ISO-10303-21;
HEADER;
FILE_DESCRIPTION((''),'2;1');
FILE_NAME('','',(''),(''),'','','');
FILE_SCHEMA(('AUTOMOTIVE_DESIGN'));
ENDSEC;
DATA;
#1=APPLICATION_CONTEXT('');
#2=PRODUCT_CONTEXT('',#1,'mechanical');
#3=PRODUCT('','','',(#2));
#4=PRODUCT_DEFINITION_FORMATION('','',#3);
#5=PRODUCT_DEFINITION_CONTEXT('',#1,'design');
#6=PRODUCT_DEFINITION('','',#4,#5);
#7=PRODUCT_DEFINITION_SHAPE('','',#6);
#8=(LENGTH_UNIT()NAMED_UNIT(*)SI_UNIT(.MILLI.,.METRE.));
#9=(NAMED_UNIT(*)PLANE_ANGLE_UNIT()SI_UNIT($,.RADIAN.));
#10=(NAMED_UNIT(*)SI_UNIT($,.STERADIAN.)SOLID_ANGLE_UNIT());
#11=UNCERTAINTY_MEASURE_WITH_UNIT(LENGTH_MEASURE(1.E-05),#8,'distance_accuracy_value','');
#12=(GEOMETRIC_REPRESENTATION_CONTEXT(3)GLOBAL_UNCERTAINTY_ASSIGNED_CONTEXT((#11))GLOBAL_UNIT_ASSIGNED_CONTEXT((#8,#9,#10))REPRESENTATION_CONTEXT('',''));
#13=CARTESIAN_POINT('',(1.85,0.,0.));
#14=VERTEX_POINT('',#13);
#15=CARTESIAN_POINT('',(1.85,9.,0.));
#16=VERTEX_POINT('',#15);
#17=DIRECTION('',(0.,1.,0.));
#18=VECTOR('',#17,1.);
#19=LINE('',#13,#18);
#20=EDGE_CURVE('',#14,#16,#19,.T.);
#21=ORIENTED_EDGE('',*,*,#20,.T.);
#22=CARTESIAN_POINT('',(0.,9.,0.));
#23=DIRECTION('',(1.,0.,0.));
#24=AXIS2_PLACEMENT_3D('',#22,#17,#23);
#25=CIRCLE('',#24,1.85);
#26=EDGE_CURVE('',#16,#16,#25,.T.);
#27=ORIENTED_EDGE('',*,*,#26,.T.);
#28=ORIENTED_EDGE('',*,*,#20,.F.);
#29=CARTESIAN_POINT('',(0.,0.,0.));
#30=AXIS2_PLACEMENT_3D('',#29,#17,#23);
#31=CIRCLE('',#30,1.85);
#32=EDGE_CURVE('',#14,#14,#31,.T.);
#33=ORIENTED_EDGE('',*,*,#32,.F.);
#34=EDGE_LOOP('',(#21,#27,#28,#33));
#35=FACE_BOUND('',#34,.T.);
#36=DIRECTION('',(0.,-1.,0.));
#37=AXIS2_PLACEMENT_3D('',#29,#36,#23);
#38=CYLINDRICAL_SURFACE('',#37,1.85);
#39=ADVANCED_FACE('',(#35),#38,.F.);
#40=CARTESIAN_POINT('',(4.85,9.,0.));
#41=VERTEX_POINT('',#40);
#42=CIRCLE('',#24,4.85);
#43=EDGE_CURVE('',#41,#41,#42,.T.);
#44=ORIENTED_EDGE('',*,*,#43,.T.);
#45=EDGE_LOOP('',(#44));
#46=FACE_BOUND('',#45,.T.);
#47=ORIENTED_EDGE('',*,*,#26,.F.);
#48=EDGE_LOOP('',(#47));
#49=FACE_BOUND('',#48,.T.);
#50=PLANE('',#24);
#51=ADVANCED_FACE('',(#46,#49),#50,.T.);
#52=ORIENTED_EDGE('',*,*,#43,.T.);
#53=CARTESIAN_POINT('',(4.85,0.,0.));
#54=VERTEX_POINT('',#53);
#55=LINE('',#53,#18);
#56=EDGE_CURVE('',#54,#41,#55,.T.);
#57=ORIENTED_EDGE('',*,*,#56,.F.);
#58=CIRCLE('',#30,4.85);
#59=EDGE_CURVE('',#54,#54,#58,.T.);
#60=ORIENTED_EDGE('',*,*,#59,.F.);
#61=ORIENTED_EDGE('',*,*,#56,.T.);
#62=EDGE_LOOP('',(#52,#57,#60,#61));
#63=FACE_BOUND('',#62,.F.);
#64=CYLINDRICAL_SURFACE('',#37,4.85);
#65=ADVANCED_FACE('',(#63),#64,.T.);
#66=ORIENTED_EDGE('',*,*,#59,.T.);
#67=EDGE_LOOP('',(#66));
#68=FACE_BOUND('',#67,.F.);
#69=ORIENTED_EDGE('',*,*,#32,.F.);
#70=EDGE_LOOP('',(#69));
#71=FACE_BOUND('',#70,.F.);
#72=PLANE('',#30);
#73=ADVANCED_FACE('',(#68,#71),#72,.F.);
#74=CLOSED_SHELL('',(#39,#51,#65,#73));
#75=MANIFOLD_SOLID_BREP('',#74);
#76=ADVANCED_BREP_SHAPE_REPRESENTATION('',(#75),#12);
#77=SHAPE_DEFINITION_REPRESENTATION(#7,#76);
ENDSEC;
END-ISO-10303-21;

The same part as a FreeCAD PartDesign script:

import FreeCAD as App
import Part
import Sketcher

V = App.Vector

doc = App.newDocument("Part")
body = doc.addObject("PartDesign::Body", "Body")

# Sketch on XZ plane
sketch1 = body.newObject("Sketcher::SketchObject", "Sketch")
sketch1.AttachmentSupport = (doc.getObject("XZ_Plane"), [""])
sketch1.MapMode = "FlatFace"
sketch1.addGeometry(Part.Circle(V(0, 0, 0), V(0, 0, 1), 4.85), False)
sketch1.addGeometry(Part.Circle(V(0, 0, 0), V(0, 0, 1), 1.85), False)
sketch1.addConstraint(Sketcher.Constraint("Coincident", 0, 3, -1, 1))
sketch1.addConstraint(Sketcher.Constraint("Coincident", 1, 3, -1, 1))
sketch1.addConstraint(Sketcher.Constraint("Diameter", 0, 9.7))
sketch1.addConstraint(Sketcher.Constraint("Diameter", 1, 3.7))
pad1 = body.newObject("PartDesign::Pad", "Pad")
pad1.Profile = sketch1
pad1.Length = 9
pad1.Reversed = True

doc.recompute()
